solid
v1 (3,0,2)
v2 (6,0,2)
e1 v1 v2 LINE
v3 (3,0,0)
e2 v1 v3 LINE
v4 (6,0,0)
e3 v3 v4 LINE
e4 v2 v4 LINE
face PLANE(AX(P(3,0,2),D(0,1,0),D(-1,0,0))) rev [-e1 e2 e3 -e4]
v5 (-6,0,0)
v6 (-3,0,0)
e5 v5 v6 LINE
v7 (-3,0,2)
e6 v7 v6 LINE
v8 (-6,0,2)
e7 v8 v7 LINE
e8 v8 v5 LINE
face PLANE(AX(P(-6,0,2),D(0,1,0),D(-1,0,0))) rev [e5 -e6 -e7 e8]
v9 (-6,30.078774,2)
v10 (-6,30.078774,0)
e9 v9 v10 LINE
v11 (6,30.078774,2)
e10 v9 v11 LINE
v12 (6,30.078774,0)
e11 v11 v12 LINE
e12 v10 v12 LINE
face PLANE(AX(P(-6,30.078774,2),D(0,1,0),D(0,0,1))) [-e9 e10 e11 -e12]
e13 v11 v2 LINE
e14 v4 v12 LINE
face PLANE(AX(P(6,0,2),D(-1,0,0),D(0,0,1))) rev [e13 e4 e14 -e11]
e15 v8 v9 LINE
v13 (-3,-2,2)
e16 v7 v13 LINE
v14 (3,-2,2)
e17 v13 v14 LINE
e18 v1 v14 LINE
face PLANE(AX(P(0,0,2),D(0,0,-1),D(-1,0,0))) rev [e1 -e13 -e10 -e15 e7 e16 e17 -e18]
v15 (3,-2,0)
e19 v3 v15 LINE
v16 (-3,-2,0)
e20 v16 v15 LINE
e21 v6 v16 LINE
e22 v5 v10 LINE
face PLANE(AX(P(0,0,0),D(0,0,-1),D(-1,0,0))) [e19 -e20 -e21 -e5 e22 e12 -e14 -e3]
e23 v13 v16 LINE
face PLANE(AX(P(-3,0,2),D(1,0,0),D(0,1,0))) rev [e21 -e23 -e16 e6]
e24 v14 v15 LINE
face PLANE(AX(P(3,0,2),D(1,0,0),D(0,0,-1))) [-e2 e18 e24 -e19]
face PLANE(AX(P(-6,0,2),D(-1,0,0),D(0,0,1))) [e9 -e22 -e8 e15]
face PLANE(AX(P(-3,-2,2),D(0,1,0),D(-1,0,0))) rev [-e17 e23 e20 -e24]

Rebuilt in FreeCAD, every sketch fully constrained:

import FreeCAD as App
import Part
import Sketcher
Q = App.Units.Quantity


def add_polygon(sketch, points):
    """Adds a closed chain of lines whose ends are joined by coincident constraints."""
    first, n = sketch.GeometryCount, len(points)
    for a, b in zip(points, points[1:] + points[:1]):
        sketch.addGeometry(Part.LineSegment(App.Vector(*a, 0), App.Vector(*b, 0)), False)
    for i in range(n):
        sketch.addConstraint(Sketcher.Constraint("Coincident", first + i, 2, first + (i + 1) % n, 1))

doc = App.newDocument("Part")
body = doc.addObject("PartDesign::Body", "Body")

# Sketch on XY plane
sketch1 = body.newObject("Sketcher::SketchObject", "Sketch")
sketch1.AttachmentSupport = (doc.getObject("XY_Plane"), [""])
sketch1.MapMode = "FlatFace"
add_polygon(sketch1, [(-6, 30.078774), (-6, 0), (-3, 0), (-3, -2), (3, -2), (3, 0), (6, 0), (6, 30.078774)])  # lines 0-7
sketch1.addConstraint([
    Sketcher.Constraint("Vertical", 0),
    Sketcher.Constraint("Horizontal", 1),
    Sketcher.Constraint("Vertical", 2),
    Sketcher.Constraint("Horizontal", 3),
    Sketcher.Constraint("Vertical", 4),
    Sketcher.Constraint("Horizontal", 5),
    Sketcher.Constraint("Vertical", 6),
    Sketcher.Constraint("Horizontal", 7),
    Sketcher.Constraint("Symmetric", 1, 2, 4, 2, -1, 1),
    Sketcher.Constraint("Symmetric", 0, 2, 5, 2, -2),
    Sketcher.Constraint("DistanceX", 1, 1, 1, 2, Q("3 mm")),
    Sketcher.Constraint("DistanceX", 3, 1, 3, 2, Q("6 mm")),
    Sketcher.Constraint("DistanceY", 2, 2, 2, 1, Q("2 mm")),
    Sketcher.Constraint("DistanceY", 0, 2, 0, 1, Q("30.078774 mm")),
])
pad1 = body.newObject("PartDesign::Pad", "Pad")
pad1.Profile = sketch1
pad1.Length = 2

doc.recompute()
